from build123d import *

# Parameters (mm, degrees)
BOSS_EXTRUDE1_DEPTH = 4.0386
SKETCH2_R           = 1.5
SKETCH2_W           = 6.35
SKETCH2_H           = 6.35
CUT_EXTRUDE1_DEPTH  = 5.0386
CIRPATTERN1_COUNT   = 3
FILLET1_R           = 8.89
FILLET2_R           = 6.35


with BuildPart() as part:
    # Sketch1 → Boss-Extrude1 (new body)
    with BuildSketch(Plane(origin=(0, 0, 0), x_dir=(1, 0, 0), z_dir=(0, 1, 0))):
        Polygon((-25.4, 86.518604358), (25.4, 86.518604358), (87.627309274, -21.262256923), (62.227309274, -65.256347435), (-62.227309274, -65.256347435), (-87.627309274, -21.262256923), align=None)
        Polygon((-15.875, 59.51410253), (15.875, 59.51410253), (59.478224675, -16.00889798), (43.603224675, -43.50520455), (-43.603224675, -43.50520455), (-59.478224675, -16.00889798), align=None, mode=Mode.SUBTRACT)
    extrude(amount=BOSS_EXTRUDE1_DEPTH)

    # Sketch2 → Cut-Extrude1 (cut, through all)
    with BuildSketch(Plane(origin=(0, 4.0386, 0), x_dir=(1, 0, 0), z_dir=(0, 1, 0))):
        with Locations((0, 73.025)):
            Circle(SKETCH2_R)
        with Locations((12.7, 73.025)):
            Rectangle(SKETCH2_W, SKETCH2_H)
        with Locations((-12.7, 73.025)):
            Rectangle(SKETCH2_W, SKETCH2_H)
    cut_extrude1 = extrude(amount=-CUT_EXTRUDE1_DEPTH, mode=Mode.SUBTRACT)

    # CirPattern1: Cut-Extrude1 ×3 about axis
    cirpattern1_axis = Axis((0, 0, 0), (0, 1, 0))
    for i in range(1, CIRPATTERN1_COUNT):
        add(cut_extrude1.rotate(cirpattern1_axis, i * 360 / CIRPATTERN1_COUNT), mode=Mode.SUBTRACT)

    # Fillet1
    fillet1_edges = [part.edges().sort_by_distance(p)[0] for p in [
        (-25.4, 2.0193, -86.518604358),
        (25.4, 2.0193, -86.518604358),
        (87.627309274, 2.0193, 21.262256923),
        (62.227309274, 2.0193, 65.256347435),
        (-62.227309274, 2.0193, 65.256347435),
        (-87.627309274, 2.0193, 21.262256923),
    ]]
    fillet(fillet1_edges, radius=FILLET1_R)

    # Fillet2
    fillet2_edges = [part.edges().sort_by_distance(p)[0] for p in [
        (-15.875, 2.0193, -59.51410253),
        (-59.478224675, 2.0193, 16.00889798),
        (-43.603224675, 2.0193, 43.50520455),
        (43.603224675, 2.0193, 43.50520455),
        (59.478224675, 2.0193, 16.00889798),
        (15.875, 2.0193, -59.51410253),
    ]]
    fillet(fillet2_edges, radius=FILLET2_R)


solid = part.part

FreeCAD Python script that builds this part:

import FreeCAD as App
import Part
import Sketcher
Q = App.Units.Quantity


def edges_at(feature, points):
    """Names of the edges that pass closest to the given points."""
    edges = feature.Shape.Edges
    near = lambda p: min(range(len(edges)), key=lambda i: edges[i].distToShape(Part.Vertex(*p))[0])
    return sorted({f"Edge{near(p) + 1}" for p in points})

doc = App.newDocument("Part")
params = doc.addObject("Spreadsheet::Sheet", "Params")
for row, (alias, value) in enumerate([
    ("sketch1_width", "2 in"),
    ("sketch1_length", "2 in"),
    ("sketch1_width2", "1.25 in"),
    ("sketch1_length2", "1.25 in"),
    ("pad1_length", "0.159 in"),
    ("sketch2_width", "0.25 in"),
    ("fillet_radius", "0.35 in"),
    ("fillet2_radius", "0.25 in"),
], start=1):
    params.set(f"A{row}", alias)
    params.set(f"B{row}", "=" + value)
    params.setAlias(f"B{row}", alias)

body = doc.addObject("PartDesign::Body", "Body")

sketch1 = body.newObject("Sketcher::SketchObject", "Sketch")
sketch1.AttachmentSupport = (doc.getObject("XZ_Plane"), [""])
sketch1.MapMode = "FlatFace"
sketch1.addGeometry([
    Part.LineSegment(App.Vector(25, -87, 0), App.Vector(-25, -87, 0)),
    Part.LineSegment(App.Vector(-25, -87, 0), App.Vector(-88, 21, 0)),
    Part.LineSegment(App.Vector(-88, 21, 0), App.Vector(-62, 65, 0)),
    Part.LineSegment(App.Vector(-62, 65, 0), App.Vector(62, 65, 0)),
    Part.LineSegment(App.Vector(62, 65, 0), App.Vector(88, 21, 0)),
    Part.LineSegment(App.Vector(88, 21, 0), App.Vector(25, -87, 0)),
    Part.LineSegment(App.Vector(-16, -60, 0), App.Vector(16, -60, 0)),
    Part.LineSegment(App.Vector(16, -60, 0), App.Vector(59, 16, 0)),
    Part.LineSegment(App.Vector(59, 16, 0), App.Vector(44, 44, 0)),
    Part.LineSegment(App.Vector(44, 44, 0), App.Vector(-44, 44, 0)),
    Part.LineSegment(App.Vector(-44, 44, 0), App.Vector(-59, 16, 0)),
    Part.LineSegment(App.Vector(-59, 16, 0), App.Vector(-16, -60, 0)),
], False)
sketch1.addConstraint([
    Sketcher.Constraint("Coincident", 0, 2, 1, 1),
    Sketcher.Constraint("Coincident", 1, 2, 2, 1),
    Sketcher.Constraint("Coincident", 2, 2, 3, 1),
    Sketcher.Constraint("Coincident", 3, 2, 4, 1),
    Sketcher.Constraint("Coincident", 4, 2, 5, 1),
    Sketcher.Constraint("Coincident", 5, 2, 0, 1),
    Sketcher.Constraint("Coincident", 6, 2, 7, 1),
    Sketcher.Constraint("Coincident", 7, 2, 8, 1),
    Sketcher.Constraint("Coincident", 8, 2, 9, 1),
    Sketcher.Constraint("Coincident", 9, 2, 10, 1),
    Sketcher.Constraint("Coincident", 10, 2, 11, 1),
    Sketcher.Constraint("Coincident", 11, 2, 6, 1),
    Sketcher.Constraint("Horizontal", 0),
    Sketcher.Constraint("Horizontal", 3),
    Sketcher.Constraint("Horizontal", 6),
    Sketcher.Constraint("Horizontal", 9),
    Sketcher.Constraint("Symmetric", 1, 2, 4, 2, -2),
    Sketcher.Constraint("Symmetric", 7, 2, 10, 2, -2),
    Sketcher.Constraint("Parallel", 1, 4),
    Sketcher.Constraint("Parallel", 2, 5),
    Sketcher.Constraint("Parallel", 5, 7),
    Sketcher.Constraint("Parallel", 4, 8),
    Sketcher.Constraint("Parallel", 7, 10),
    Sketcher.Constraint("Parallel", 8, 11),
    Sketcher.Constraint("Equal", 2, 4),
    Sketcher.Constraint("DistanceX", 0, 2, 0, 1, Q("2 in")),
    Sketcher.Constraint("Distance", 2, Q("2 in")),
    Sketcher.Constraint("Angle", 1, Q("120 deg")),
    Sketcher.Constraint("DistanceX", 6, 1, 6, 2, Q("1.25 in")),
    Sketcher.Constraint("Distance", 8, Q("1.25 in")),
    Sketcher.Constraint("DistanceX", 3, 1, 3, 2, 124.454619),
    Sketcher.Constraint("DistanceX", 9, 2, 9, 1, 87.206449),
    Sketcher.Constraint("DistanceY", 5, 2, 6, 2, 27.004502),
    Sketcher.Constraint("DistanceY", 0, 2, -1, 1, 86.518604),
])
sketch1.setExpression("Constraints[25]", "Params.sketch1_width")
sketch1.setExpression("Constraints[26]", "Params.sketch1_length")
sketch1.setExpression("Constraints[28]", "Params.sketch1_width2")
sketch1.setExpression("Constraints[29]", "Params.sketch1_length2")
pad1 = body.newObject("PartDesign::Pad", "Pad")
pad1.Profile = sketch1
pad1.setExpression("Length", "Params.pad1_length")
pad1.Reversed = True

sketch2 = body.newObject("Sketcher::SketchObject", "Sketch001")
sketch2.AttachmentSupport = (doc.getObject("XZ_Plane"), [""])
sketch2.MapMode = "FlatFace"
sketch2.AttachmentOffset = App.Placement(App.Vector(0, 0, -0.159 * 25.4), App.Rotation())
sketch2.addGeometry([
    Part.Circle(App.Vector(0, -73, 0), App.Vector(0, 0, 1), 1.5),
    Part.LineSegment(App.Vector(9.5, -76.2, 0), App.Vector(9.5, -69.8, 0)),
    Part.LineSegment(App.Vector(9.5, -69.8, 0), App.Vector(15.9, -69.8, 0)),
    Part.LineSegment(App.Vector(15.9, -69.8, 0), App.Vector(15.9, -76.2, 0)),
    Part.LineSegment(App.Vector(15.9, -76.2, 0), App.Vector(9.5, -76.2, 0)),
    Part.LineSegment(App.Vector(-15.9, -76.2, 0), App.Vector(-15.9, -69.8, 0)),
    Part.LineSegment(App.Vector(-15.9, -69.8, 0), App.Vector(-9.5, -69.8, 0)),
    Part.LineSegment(App.Vector(-9.5, -69.8, 0), App.Vector(-9.5, -76.2, 0)),
    Part.LineSegment(App.Vector(-9.5, -76.2, 0), App.Vector(-15.9, -76.2, 0)),
], False)
sketch2.addConstraint([
    Sketcher.Constraint("Coincident", 1, 2, 2, 1),
    Sketcher.Constraint("Coincident", 2, 2, 3, 1),
    Sketcher.Constraint("Coincident", 3, 2, 4, 1),
    Sketcher.Constraint("Coincident", 4, 2, 1, 1),
    Sketcher.Constraint("Coincident", 5, 2, 6, 1),
    Sketcher.Constraint("Coincident", 6, 2, 7, 1),
    Sketcher.Constraint("Coincident", 7, 2, 8, 1),
    Sketcher.Constraint("Coincident", 8, 2, 5, 1),
    Sketcher.Constraint("Vertical", 1),
    Sketcher.Constraint("Horizontal", 2),
    Sketcher.Constraint("Vertical", 3),
    Sketcher.Constraint("Horizontal", 4),
    Sketcher.Constraint("Vertical", 5),
    Sketcher.Constraint("Horizontal", 6),
    Sketcher.Constraint("Vertical", 7),
    Sketcher.Constraint("Horizontal", 8),
    Sketcher.Constraint("Symmetric", 2, 2, 5, 2, -2),
    Sketcher.Constraint("Symmetric", 4, 2, 7, 2, -2),
    Sketcher.Constraint("PointOnObject", 0, 3, -2),
    Sketcher.Constraint("Equal", 8, 1),
    Sketcher.Constraint("DistanceY", 3, 2, -1, 1, Q("3 in")),
    Sketcher.Constraint("DistanceX", 5, 2, 1, 2, Q("1 in")),
    Sketcher.Constraint("DistanceX", 2, 1, 2, 2, Q("0.25 in")),
    Sketcher.Constraint("Diameter", 0, 3.0),
    Sketcher.Constraint("DistanceY", 0, 3, -1, 1, Q("2.875 in")),
])
sketch2.setExpression("Constraints[22]", "Params.sketch2_width")
pocket1 = body.newObject("PartDesign::Pocket", "Pocket")
pocket1.Profile = sketch2
pocket1.Type = "ThroughAll"
pocket1.Reversed = True
doc.recompute()

polarpattern = body.newObject("PartDesign::PolarPattern", "PolarPattern")
polarpattern.Originals = [pocket1]
polarpattern.Axis = (doc.getObject("Y_Axis"), [""])
polarpattern.Angle = 360
polarpattern.Occurrences = 3
body.Tip = polarpattern
doc.recompute()

fillet = body.newObject("PartDesign::Fillet", "Fillet")
fillet.Base = (polarpattern, edges_at(polarpattern, [
    (-25.4, 2.019, -86.519),
    (25.4, 2.019, -86.519),
    (87.627, 2.019, 21.262),
    (62.227, 2.019, 65.256),
    (-62.227, 2.019, 65.256),
    (-87.627, 2.019, 21.262),
]))
fillet.setExpression("Radius", "Params.fillet_radius")
doc.recompute()

fillet2 = body.newObject("PartDesign::Fillet", "Fillet001")
fillet2.Base = (fillet, edges_at(fillet, [
    (-15.875, 2.019, -59.514),
    (-59.478, 2.019, 16.009),
    (-43.603, 2.019, 43.505),
    (43.603, 2.019, 43.505),
    (59.478, 2.019, 16.009),
    (15.875, 2.019, -59.514),
]))
fillet2.setExpression("Radius", "Params.fillet2_radius")

doc.recompute()
